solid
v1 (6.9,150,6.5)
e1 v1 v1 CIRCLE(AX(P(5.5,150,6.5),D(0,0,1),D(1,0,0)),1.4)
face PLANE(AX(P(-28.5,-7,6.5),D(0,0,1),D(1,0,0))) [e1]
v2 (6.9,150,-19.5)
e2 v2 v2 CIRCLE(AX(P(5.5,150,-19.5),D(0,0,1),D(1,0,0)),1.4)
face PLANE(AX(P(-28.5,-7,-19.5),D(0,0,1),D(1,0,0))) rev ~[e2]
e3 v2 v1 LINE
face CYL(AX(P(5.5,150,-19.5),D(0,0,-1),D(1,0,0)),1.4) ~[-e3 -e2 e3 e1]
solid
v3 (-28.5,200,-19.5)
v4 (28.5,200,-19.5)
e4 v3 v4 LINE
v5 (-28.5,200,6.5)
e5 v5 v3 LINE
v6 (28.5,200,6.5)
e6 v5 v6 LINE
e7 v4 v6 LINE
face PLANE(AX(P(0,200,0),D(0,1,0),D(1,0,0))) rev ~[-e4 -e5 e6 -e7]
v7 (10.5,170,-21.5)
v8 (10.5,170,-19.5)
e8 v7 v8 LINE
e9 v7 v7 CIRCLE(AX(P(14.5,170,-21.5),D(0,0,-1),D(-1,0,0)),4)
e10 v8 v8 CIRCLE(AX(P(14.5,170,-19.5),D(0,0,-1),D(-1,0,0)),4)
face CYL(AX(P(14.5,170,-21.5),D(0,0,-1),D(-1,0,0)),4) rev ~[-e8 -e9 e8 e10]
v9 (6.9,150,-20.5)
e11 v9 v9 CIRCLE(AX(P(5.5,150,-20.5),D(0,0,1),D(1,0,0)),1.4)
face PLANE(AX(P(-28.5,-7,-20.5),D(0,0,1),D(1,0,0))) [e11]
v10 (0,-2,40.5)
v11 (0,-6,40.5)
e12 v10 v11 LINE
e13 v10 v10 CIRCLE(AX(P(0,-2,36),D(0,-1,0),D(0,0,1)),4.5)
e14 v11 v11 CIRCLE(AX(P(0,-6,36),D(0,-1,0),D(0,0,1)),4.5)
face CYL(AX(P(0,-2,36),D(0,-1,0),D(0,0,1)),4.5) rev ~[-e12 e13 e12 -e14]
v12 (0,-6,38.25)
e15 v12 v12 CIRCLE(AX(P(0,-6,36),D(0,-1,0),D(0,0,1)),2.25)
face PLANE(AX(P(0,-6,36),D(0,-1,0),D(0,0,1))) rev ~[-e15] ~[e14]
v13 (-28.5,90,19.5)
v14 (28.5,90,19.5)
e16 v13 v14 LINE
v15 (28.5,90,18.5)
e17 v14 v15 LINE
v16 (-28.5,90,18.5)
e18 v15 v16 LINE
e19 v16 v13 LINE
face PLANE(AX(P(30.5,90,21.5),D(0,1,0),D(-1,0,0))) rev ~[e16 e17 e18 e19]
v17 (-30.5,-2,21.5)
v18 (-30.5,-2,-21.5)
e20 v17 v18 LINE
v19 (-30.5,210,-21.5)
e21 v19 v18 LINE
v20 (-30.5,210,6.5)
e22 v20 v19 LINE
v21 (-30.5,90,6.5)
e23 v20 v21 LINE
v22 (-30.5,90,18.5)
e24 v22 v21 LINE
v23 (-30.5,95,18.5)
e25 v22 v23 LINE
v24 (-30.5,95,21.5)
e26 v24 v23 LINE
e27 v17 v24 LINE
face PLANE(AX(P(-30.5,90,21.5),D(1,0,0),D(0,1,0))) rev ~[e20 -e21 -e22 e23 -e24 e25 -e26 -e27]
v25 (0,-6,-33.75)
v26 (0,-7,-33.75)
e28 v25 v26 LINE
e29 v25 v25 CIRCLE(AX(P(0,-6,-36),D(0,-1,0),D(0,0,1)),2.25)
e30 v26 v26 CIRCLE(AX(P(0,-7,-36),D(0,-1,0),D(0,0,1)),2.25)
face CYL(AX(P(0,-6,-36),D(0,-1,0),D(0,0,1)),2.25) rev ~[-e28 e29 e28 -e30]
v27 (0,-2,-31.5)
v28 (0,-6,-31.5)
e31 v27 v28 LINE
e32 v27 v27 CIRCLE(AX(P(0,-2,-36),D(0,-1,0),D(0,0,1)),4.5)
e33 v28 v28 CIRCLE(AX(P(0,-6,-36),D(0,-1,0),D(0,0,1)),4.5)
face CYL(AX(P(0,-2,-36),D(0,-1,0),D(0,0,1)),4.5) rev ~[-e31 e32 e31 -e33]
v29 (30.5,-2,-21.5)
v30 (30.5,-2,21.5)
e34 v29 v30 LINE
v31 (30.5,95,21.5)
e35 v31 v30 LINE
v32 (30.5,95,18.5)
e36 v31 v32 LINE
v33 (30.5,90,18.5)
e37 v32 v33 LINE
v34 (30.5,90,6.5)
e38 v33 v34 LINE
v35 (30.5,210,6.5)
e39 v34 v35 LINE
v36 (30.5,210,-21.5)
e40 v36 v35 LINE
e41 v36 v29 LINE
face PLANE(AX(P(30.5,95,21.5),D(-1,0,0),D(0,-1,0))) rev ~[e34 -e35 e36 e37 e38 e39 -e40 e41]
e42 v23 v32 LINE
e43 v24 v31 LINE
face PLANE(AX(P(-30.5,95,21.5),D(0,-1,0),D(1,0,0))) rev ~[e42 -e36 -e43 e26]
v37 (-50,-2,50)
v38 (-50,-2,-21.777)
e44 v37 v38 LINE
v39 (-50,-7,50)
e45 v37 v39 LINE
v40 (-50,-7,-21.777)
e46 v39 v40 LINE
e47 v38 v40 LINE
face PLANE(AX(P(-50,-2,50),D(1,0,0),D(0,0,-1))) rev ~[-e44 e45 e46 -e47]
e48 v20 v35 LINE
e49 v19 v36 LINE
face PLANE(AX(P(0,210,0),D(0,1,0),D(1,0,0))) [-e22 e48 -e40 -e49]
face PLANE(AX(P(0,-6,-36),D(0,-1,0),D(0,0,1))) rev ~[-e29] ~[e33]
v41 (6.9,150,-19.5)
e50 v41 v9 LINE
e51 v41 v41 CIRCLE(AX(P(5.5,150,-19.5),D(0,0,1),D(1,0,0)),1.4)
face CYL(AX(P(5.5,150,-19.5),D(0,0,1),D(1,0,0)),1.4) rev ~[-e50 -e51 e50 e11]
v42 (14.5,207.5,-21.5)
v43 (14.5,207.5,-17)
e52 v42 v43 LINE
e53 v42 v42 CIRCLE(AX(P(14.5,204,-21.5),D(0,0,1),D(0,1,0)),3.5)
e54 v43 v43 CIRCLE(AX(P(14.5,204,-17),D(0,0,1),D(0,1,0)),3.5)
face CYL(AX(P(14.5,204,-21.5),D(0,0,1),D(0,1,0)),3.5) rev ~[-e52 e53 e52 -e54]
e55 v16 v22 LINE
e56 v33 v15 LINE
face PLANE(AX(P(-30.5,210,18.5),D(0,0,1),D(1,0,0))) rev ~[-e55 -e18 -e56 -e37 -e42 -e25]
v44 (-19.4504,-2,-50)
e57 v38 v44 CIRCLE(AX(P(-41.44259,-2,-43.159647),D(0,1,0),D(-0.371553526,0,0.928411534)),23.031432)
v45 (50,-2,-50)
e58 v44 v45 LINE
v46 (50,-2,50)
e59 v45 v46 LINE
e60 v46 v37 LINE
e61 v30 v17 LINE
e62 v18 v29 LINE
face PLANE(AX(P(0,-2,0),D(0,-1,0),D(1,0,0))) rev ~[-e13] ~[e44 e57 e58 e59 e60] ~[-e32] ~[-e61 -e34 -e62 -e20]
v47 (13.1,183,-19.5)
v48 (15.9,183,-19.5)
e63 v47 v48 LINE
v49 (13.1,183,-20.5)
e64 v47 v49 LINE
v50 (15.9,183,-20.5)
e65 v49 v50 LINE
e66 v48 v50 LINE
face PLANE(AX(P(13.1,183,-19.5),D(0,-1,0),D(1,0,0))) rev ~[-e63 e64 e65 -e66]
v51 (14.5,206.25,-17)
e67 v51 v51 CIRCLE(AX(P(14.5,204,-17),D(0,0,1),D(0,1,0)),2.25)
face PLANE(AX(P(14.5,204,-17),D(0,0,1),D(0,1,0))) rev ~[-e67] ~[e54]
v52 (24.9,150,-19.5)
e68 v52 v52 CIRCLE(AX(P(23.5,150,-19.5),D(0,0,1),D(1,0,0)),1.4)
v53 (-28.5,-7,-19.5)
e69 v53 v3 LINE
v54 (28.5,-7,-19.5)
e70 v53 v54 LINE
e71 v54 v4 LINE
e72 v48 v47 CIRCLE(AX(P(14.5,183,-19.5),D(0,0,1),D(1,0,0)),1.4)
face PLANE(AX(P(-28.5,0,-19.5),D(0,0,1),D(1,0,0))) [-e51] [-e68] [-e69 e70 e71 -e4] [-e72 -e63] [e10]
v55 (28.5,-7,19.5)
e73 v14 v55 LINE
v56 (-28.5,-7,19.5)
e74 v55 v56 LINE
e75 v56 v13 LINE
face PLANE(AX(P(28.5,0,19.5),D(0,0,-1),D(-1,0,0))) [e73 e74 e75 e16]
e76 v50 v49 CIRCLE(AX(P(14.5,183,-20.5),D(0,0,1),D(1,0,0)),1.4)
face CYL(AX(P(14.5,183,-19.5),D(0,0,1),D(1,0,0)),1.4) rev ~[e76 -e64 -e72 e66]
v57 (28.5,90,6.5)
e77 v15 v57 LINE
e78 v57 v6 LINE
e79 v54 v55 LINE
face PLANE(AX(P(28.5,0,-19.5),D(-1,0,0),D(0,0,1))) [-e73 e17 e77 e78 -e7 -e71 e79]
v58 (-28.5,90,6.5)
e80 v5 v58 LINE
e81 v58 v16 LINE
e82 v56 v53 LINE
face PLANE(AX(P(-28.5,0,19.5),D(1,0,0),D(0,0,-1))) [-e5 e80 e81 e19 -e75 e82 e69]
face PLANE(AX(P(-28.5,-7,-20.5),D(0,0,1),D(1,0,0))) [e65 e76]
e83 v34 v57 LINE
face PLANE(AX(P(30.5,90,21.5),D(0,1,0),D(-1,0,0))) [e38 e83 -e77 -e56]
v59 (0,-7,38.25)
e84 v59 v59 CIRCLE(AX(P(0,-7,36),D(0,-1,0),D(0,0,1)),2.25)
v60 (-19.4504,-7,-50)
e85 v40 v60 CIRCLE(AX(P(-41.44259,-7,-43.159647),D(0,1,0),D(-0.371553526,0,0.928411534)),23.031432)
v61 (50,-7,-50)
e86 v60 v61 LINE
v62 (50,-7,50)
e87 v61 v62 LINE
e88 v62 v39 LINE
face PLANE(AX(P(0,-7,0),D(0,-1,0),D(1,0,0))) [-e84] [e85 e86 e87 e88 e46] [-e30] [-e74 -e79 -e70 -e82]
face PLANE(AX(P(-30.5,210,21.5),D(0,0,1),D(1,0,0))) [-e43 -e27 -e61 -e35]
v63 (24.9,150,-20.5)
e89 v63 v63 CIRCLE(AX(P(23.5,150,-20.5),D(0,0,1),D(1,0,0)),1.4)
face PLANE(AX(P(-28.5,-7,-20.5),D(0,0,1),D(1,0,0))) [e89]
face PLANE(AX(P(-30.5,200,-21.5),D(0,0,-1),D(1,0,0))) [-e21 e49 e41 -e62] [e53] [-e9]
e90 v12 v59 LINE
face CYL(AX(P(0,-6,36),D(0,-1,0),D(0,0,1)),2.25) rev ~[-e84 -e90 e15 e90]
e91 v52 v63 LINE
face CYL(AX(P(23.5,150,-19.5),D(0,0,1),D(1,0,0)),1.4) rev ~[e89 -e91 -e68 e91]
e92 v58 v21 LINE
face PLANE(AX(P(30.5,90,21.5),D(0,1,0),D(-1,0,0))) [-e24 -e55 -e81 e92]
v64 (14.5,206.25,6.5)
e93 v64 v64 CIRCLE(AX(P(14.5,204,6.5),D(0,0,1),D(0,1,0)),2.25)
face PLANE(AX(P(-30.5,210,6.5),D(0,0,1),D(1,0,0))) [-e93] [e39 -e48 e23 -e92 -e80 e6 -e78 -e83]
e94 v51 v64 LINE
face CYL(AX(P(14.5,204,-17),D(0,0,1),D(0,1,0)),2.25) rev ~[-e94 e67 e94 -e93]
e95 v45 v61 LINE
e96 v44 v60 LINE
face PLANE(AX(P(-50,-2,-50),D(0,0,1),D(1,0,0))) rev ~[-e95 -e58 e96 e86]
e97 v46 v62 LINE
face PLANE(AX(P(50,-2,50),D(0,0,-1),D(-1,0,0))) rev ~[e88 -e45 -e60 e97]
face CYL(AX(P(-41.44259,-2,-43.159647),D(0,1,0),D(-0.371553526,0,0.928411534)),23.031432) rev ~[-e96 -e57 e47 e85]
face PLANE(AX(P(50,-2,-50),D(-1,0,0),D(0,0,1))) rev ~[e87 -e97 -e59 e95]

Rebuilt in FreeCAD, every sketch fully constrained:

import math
import FreeCAD as App
import Part
import Sketcher
from FreeCAD import Vector

doc = App.newDocument("Part")
params = doc.addObject("Spreadsheet::Sheet", "Params")
for row, (alias, value) in enumerate([
    ("sketch1_width", "61 mm"),
    ("sketch1_height", "43 mm"),
    ("pad1_length", "2 mm"),
    ("sketch2_width", "61 mm"),
    ("sketch2_width2", "57 mm"),
    ("sketch2_height", "43 mm"),
    ("sketch2_height2", "39 mm"),
    ("pad2_length", "200 mm"),
    ("sketch3_width", "61 mm"),
    ("sketch3_height", "43 mm"),
    ("pad3_length", "10 mm"),
    ("sketch4_width", "100 mm"),
    ("sketch4_width2", "61 mm"),
    ("sketch4_height", "43 mm"),
    ("pad4_length", "5 mm"),
    ("sketch5_diameter", "14.5 mm"),
    ("sketch5_width", "61 mm"),
    ("sketch5_height", "43 mm"),
    ("pad5_length", "5 mm"),
    ("sketch6_width", "57 mm"),
    ("sketch6_height", "39 mm"),
    ("pocket1_length", "7 mm"),
    ("sketch7_height", "120 mm"),
    ("sketch7_width", "61 mm"),
    ("pocket2_length", "15 mm"),
    ("sketch8_height", "5 mm"),
    ("sketch8_width", "61 mm"),
    ("pad6_length", "3 mm"),
    ("sketch9_diameter", "4.5 mm"),
    ("hole_diameter", "4.5 mm"),
    ("hole_cbore_diameter", "7 mm"),
    ("hole_cbore_depth", "4.5 mm"),
    ("sketch10_diameter", "8 mm"),
    ("sketch11_radius", "1.4 mm"),
    ("pocket4_length", "1 mm"),
    ("sketch12_diameter", "4.5 mm"),
    ("hole2_diameter", "4.5 mm"),
    ("hole2_cbore_diameter", "9 mm"),
    ("hole2_cbore_depth", "4 mm"),
    ("sketch13_diameter", "2.8 mm"),
    ("pocket5_length", "1 mm"),
    ("sketch14_diameter", "2.8 mm"),
    ("pad7_length", "26 mm"),
    ("pocket6_length", "5 mm"),
], start=1):
    params.set(f"A{row}", alias)
    params.set(f"B{row}", "=" + value)
    params.setAlias(f"B{row}", alias)

body = doc.addObject("PartDesign::Body", "Body")
body.AllowCompound = True

sketch1 = doc.addObject("Sketcher::SketchObject", "Sketch")
body.addObject(sketch1)
sketch1.AttachmentSupport = (doc.XZ_Plane, [""])
sketch1.MapMode = "FlatFace"
sketch1.addGeometry(Part.LineSegment(Vector(-30, 22, 0), Vector(30, 22, 0)), False)
sketch1.addGeometry(Part.LineSegment(Vector(30, 22, 0), Vector(30, -22, 0)), False)
sketch1.addGeometry(Part.LineSegment(Vector(30, -22, 0), Vector(-30, -22, 0)), False)
sketch1.addGeometry(Part.LineSegment(Vector(-30, -22, 0), Vector(-30, 22, 0)), False)
sketch1.addConstraint(Sketcher.Constraint("Coincident", 0, 2, 1, 1))
sketch1.addConstraint(Sketcher.Constraint("Coincident", 1, 2, 2, 1))
sketch1.addConstraint(Sketcher.Constraint("Coincident", 2, 2, 3, 1))
sketch1.addConstraint(Sketcher.Constraint("Coincident", 3, 2, 0, 1))
sketch1.addConstraint(Sketcher.Constraint("Horizontal", 0))
sketch1.addConstraint(Sketcher.Constraint("Vertical", 1))
sketch1.addConstraint(Sketcher.Constraint("Horizontal", 2))
sketch1.addConstraint(Sketcher.Constraint("Vertical", 3))
sketch1.addConstraint(Sketcher.Constraint("Symmetric", 0, 2, 2, 2, -1, 1))
sketch1.addConstraint(Sketcher.Constraint("DistanceX", 0, 1, 0, 2, 61.0))
sketch1.addConstraint(Sketcher.Constraint("DistanceY", 1, 2, 1, 1, 43.0))
sketch1.setExpression("Constraints[9]", "Params.sketch1_width")
sketch1.setExpression("Constraints[10]", "Params.sketch1_height")
pad1 = doc.addObject("PartDesign::Pad", "Pad")
body.addObject(pad1)
pad1.Profile = sketch1
pad1.setExpression("Length", "Params.pad1_length")

sketch2 = doc.addObject("Sketcher::SketchObject", "Sketch001")
body.addObject(sketch2)
sketch2.AttachmentSupport = (doc.XZ_Plane, [""])
sketch2.MapMode = "FlatFace"
sketch2.addGeometry(Part.LineSegment(Vector(-30, 22, 0), Vector(30, 22, 0)), False)
sketch2.addGeometry(Part.LineSegment(Vector(30, 22, 0), Vector(30, -22, 0)), False)
sketch2.addGeometry(Part.LineSegment(Vector(30, -22, 0), Vector(-30, -22, 0)), False)
sketch2.addGeometry(Part.LineSegment(Vector(-30, -22, 0), Vector(-30, 22, 0)), False)
sketch2.addGeometry(Part.LineSegment(Vector(28, -20, 0), Vector(28, 20, 0)), False)
sketch2.addGeometry(Part.LineSegment(Vector(28, 20, 0), Vector(-28, 20, 0)), False)
sketch2.addGeometry(Part.LineSegment(Vector(-28, 20, 0), Vector(-28, -20, 0)), False)
sketch2.addGeometry(Part.LineSegment(Vector(-28, -20, 0), Vector(28, -20, 0)), False)
sketch2.addConstraint(Sketcher.Constraint("Coincident", 0, 2, 1, 1))
sketch2.addConstraint(Sketcher.Constraint("Coincident", 1, 2, 2, 1))
sketch2.addConstraint(Sketcher.Constraint("Coincident", 2, 2, 3, 1))
sketch2.addConstraint(Sketcher.Constraint("Coincident", 3, 2, 0, 1))
sketch2.addConstraint(Sketcher.Constraint("Coincident", 4, 2, 5, 1))
sketch2.addConstraint(Sketcher.Constraint("Coincident", 5, 2, 6, 1))
sketch2.addConstraint(Sketcher.Constraint("Coincident", 6, 2, 7, 1))
sketch2.addConstraint(Sketcher.Constraint("Coincident", 7, 2, 4, 1))
sketch2.addConstraint(Sketcher.Constraint("Horizontal", 0))
sketch2.addConstraint(Sketcher.Constraint("Vertical", 1))
sketch2.addConstraint(Sketcher.Constraint("Horizontal", 2))
sketch2.addConstraint(Sketcher.Constraint("Vertical", 3))
sketch2.addConstraint(Sketcher.Constraint("Vertical", 4))
sketch2.addConstraint(Sketcher.Constraint("Horizontal", 5))
sketch2.addConstraint(Sketcher.Constraint("Vertical", 6))
sketch2.addConstraint(Sketcher.Constraint("Horizontal", 7))
sketch2.addConstraint(Sketcher.Constraint("Symmetric", 0, 2, 2, 2, -1, 1))
sketch2.addConstraint(Sketcher.Constraint("Symmetric", 4, 2, 6, 2, -1, 1))
sketch2.addConstraint(Sketcher.Constraint("DistanceX", 0, 1, 0, 2, 61.0))
sketch2.addConstraint(Sketcher.Constraint("DistanceX", 5, 2, 5, 1, 57.0))
sketch2.addConstraint(Sketcher.Constraint("DistanceY", 1, 2, 1, 1, 43.0))
sketch2.addConstraint(Sketcher.Constraint("DistanceY", 4, 1, 4, 2, 39.0))
sketch2.setExpression("Constraints[18]", "Params.sketch2_width")
sketch2.setExpression("Constraints[19]", "Params.sketch2_width2")
sketch2.setExpression("Constraints[20]", "Params.sketch2_height")
sketch2.setExpression("Constraints[21]", "Params.sketch2_height2")
pad2 = doc.addObject("PartDesign::Pad", "Pad001")
body.addObject(pad2)
pad2.Profile = sketch2
pad2.setExpression("Length", "Params.pad2_length")
pad2.Reversed = True

sketch3 = doc.addObject("Sketcher::SketchObject", "Sketch002")
body.addObject(sketch3)
sketch3.AttachmentSupport = (doc.XZ_Plane, [""])
sketch3.MapMode = "FlatFace"
sketch3.AttachmentOffset = App.Placement(Vector(0, 0, -200), App.Rotation())
sketch3.addGeometry(Part.LineSegment(Vector(-30, -22, 0), Vector(-30, 22, 0)), False)
sketch3.addGeometry(Part.LineSegment(Vector(-30, 22, 0), Vector(30, 22, 0)), False)
sketch3.addGeometry(Part.LineSegment(Vector(30, 22, 0), Vector(30, -22, 0)), False)
sketch3.addGeometry(Part.LineSegment(Vector(30, -22, 0), Vector(-30, -22, 0)), False)
sketch3.addConstraint(Sketcher.Constraint("Coincident", 0, 2, 1, 1))
sketch3.addConstraint(Sketcher.Constraint("Coincident", 1, 2, 2, 1))
sketch3.addConstraint(Sketcher.Constraint("Coincident", 2, 2, 3, 1))
sketch3.addConstraint(Sketcher.Constraint("Coincident", 3, 2, 0, 1))
sketch3.addConstraint(Sketcher.Constraint("Vertical", 0))
sketch3.addConstraint(Sketcher.Constraint("Horizontal", 1))
sketch3.addConstraint(Sketcher.Constraint("Vertical", 2))
sketch3.addConstraint(Sketcher.Constraint("Horizontal", 3))
sketch3.addConstraint(Sketcher.Constraint("Symmetric", 0, 2, 2, 2, -1, 1))
sketch3.addConstraint(Sketcher.Constraint("DistanceX", 1, 1, 1, 2, 61.0))
sketch3.addConstraint(Sketcher.Constraint("DistanceY", 0, 1, 0, 2, 43.0))
sketch3.setExpression("Constraints[9]", "Params.sketch3_width")
sketch3.setExpression("Constraints[10]", "Params.sketch3_height")
pad3 = doc.addObject("PartDesign::Pad", "Pad002")
body.addObject(pad3)
pad3.Profile = sketch3
pad3.setExpression("Length", "Params.pad3_length")
pad3.Reversed = True

sketch4 = doc.addObject("Sketcher::SketchObject", "Sketch003")
body.addObject(sketch4)
sketch4.AttachmentSupport = (doc.XZ_Plane, [""])
sketch4.MapMode = "FlatFace"
sketch4.AttachmentOffset = App.Placement(Vector(0, 0, 2), App.Rotation())
sketch4.addGeometry(Part.LineSegment(Vector(-50, 50, 0), Vector(-50, -50, 0)), False)
sketch4.addGeometry(Part.LineSegment(Vector(-50, -50, 0), Vector(50, -50, 0)), False)
sketch4.addGeometry(Part.LineSegment(Vector(50, -50, 0), Vector(50, 50, 0)), False)
sketch4.addGeometry(Part.LineSegment(Vector(50, 50, 0), Vector(-50, 50, 0)), False)
sketch4.addGeometry(Part.LineSegment(Vector(30, -22, 0), Vector(-30, -22, 0)), False)
sketch4.addGeometry(Part.LineSegment(Vector(-30, -22, 0), Vector(-30, 22, 0)), False)
sketch4.addGeometry(Part.LineSegment(Vector(-30, 22, 0), Vector(30, 22, 0)), False)
sketch4.addGeometry(Part.LineSegment(Vector(30, 22, 0), Vector(30, -22, 0)), False)
sketch4.addConstraint(Sketcher.Constraint("Coincident", 0, 2, 1, 1))
sketch4.addConstraint(Sketcher.Constraint("Coincident", 1, 2, 2, 1))
sketch4.addConstraint(Sketcher.Constraint("Coincident", 2, 2, 3, 1))
sketch4.addConstraint(Sketcher.Constraint("Coincident", 3, 2, 0, 1))
sketch4.addConstraint(Sketcher.Constraint("Coincident", 4, 2, 5, 1))
sketch4.addConstraint(Sketcher.Constraint("Coincident", 5, 2, 6, 1))
sketch4.addConstraint(Sketcher.Constraint("Coincident", 6, 2, 7, 1))
sketch4.addConstraint(Sketcher.Constraint("Coincident", 7, 2, 4, 1))
sketch4.addConstraint(Sketcher.Constraint("Vertical", 0))
sketch4.addConstraint(Sketcher.Constraint("Horizontal", 1))
sketch4.addConstraint(Sketcher.Constraint("Vertical", 2))
sketch4.addConstraint(Sketcher.Constraint("Horizontal", 3))
sketch4.addConstraint(Sketcher.Constraint("Horizontal", 4))
sketch4.addConstraint(Sketcher.Constraint("Vertical", 5))
sketch4.addConstraint(Sketcher.Constraint("Horizontal", 6))
sketch4.addConstraint(Sketcher.Constraint("Vertical", 7))
sketch4.addConstraint(Sketcher.Constraint("Symmetric", 0, 2, 2, 2, -1, 1))
sketch4.addConstraint(Sketcher.Constraint("Symmetric", 4, 2, 6, 2, -1, 1))
sketch4.addConstraint(Sketcher.Constraint("Equal", 3, 0))
sketch4.addConstraint(Sketcher.Constraint("DistanceX", 1, 1, 1, 2, 100.0))
sketch4.addConstraint(Sketcher.Constraint("DistanceX", 4, 2, 4, 1, 61.0))
sketch4.addConstraint(Sketcher.Constraint("DistanceY", 5, 1, 5, 2, 43.0))
sketch4.setExpression("Constraints[19]", "Params.sketch4_width")
sketch4.setExpression("Constraints[20]", "Params.sketch4_width2")
sketch4.setExpression("Constraints[21]", "Params.sketch4_height")
pad4 = doc.addObject("PartDesign::Pad", "Pad003")
body.addObject(pad4)
pad4.Profile = sketch4
pad4.setExpression("Length", "Params.pad4_length")

sketch5 = doc.addObject("Sketcher::SketchObject", "Sketch004")
body.addObject(sketch5)
sketch5.AttachmentSupport = (doc.XZ_Plane, [""])
sketch5.MapMode = "FlatFace"
sketch5.AttachmentOffset = App.Placement(Vector(0, 0, 2), App.Rotation())
sketch5.addGeometry(Part.LineSegment(Vector(-30, 22, 0), Vector(-30, -22, 0)), False)
sketch5.addGeometry(Part.LineSegment(Vector(-30, -22, 0), Vector(30, -22, 0)), False)
sketch5.addGeometry(Part.LineSegment(Vector(30, -22, 0), Vector(30, 22, 0)), False)
sketch5.addGeometry(Part.LineSegment(Vector(30, 22, 0), Vector(-30, 22, 0)), False)
sketch5.addGeometry(Part.Circle(Vector(0, 0, 0), Vector(0, 0, 1), 7), False)
sketch5.addConstraint(Sketcher.Constraint("Coincident", 0, 2, 1, 1))
sketch5.addConstraint(Sketcher.Constraint("Coincident", 1, 2, 2, 1))
sketch5.addConstraint(Sketcher.Constraint("Coincident", 2, 2, 3, 1))
sketch5.addConstraint(Sketcher.Constraint("Coincident", 3, 2, 0, 1))
sketch5.addConstraint(Sketcher.Constraint("Vertical", 0))
sketch5.addConstraint(Sketcher.Constraint("Horizontal", 1))
sketch5.addConstraint(Sketcher.Constraint("Vertical", 2))
sketch5.addConstraint(Sketcher.Constraint("Horizontal", 3))
sketch5.addConstraint(Sketcher.Constraint("Coincident", 4, 3, -1, 1))
sketch5.addConstraint(Sketcher.Constraint("Symmetric", 0, 2, 2, 2, -1, 1))
sketch5.addConstraint(Sketcher.Constraint("Diameter", 4, 14.5))
sketch5.addConstraint(Sketcher.Constraint("DistanceX", 1, 1, 1, 2, 61.0))
sketch5.addConstraint(Sketcher.Constraint("DistanceY", 0, 2, 0, 1, 43.0))
sketch5.setExpression("Constraints[10]", "Params.sketch5_diameter")
sketch5.setExpression("Constraints[11]", "Params.sketch5_width")
sketch5.setExpression("Constraints[12]", "Params.sketch5_height")
pad5 = doc.addObject("PartDesign::Pad", "Pad004")
body.addObject(pad5)
pad5.Profile = sketch5
pad5.setExpression("Length", "Params.pad5_length")

sketch6 = doc.addObject("Sketcher::SketchObject", "Sketch005")
body.addObject(sketch6)
sketch6.AttachmentSupport = (doc.XZ_Plane, [""])
sketch6.MapMode = "FlatFace"
sketch6.addGeometry(Part.LineSegment(Vector(-28, 20, 0), Vector(28, 20, 0)), False)
sketch6.addGeometry(Part.LineSegment(Vector(28, 20, 0), Vector(28, -20, 0)), False)
sketch6.addGeometry(Part.LineSegment(Vector(28, -20, 0), Vector(-28, -20, 0)), False)
sketch6.addGeometry(Part.LineSegment(Vector(-28, -20, 0), Vector(-28, 20, 0)), False)
sketch6.addConstraint(Sketcher.Constraint("Coincident", 0, 2, 1, 1))
sketch6.addConstraint(Sketcher.Constraint("Coincident", 1, 2, 2, 1))
sketch6.addConstraint(Sketcher.Constraint("Coincident", 2, 2, 3, 1))
sketch6.addConstraint(Sketcher.Constraint("Coincident", 3, 2, 0, 1))
sketch6.addConstraint(Sketcher.Constraint("Horizontal", 0))
sketch6.addConstraint(Sketcher.Constraint("Vertical", 1))
sketch6.addConstraint(Sketcher.Constraint("Horizontal", 2))
sketch6.addConstraint(Sketcher.Constraint("Vertical", 3))
sketch6.addConstraint(Sketcher.Constraint("Symmetric", 0, 2, 2, 2, -1, 1))
sketch6.addConstraint(Sketcher.Constraint("DistanceX", 0, 1, 0, 2, 57.0))
sketch6.addConstraint(Sketcher.Constraint("DistanceY", 1, 2, 1, 1, 39.0))
sketch6.setExpression("Constraints[9]", "Params.sketch6_width")
sketch6.setExpression("Constraints[10]", "Params.sketch6_height")
pocket1 = doc.addObject("PartDesign::Pocket", "Pocket")
body.addObject(pocket1)
pocket1.Profile = sketch6
pocket1.setExpression("Length", "Params.pocket1_length")
pocket1.Reversed = True

sketch7 = doc.addObject("Sketcher::SketchObject", "Sketch006")
body.addObject(sketch7)
sketch7.AttachmentSupport = (doc.XY_Plane, [""])
sketch7.MapMode = "FlatFace"
sketch7.AttachmentOffset = App.Placement(Vector(0, 0, 21.5), App.Rotation())
sketch7.addGeometry(Part.LineSegment(Vector(30, 210, 0), Vector(-30, 210, 0)), False)
sketch7.addGeometry(Part.LineSegment(Vector(-30, 210, 0), Vector(-30, 90, 0)), False)
sketch7.addGeometry(Part.LineSegment(Vector(-30, 90, 0), Vector(30, 90, 0)), False)
sketch7.addGeometry(Part.LineSegment(Vector(30, 90, 0), Vector(30, 210, 0)), False)
sketch7.addConstraint(Sketcher.Constraint("Coincident", 0, 2, 1, 1))
sketch7.addConstraint(Sketcher.Constraint("Coincident", 1, 2, 2, 1))
sketch7.addConstraint(Sketcher.Constraint("Coincident", 2, 2, 3, 1))
sketch7.addConstraint(Sketcher.Constraint("Coincident", 3, 2, 0, 1))
sketch7.addConstraint(Sketcher.Constraint("Horizontal", 0))
sketch7.addConstraint(Sketcher.Constraint("Vertical", 1))
sketch7.addConstraint(Sketcher.Constraint("Horizontal", 2))
sketch7.addConstraint(Sketcher.Constraint("Vertical", 3))
sketch7.addConstraint(Sketcher.Constraint("DistanceY", 1, 2, 1, 1, 120.0))
sketch7.addConstraint(Sketcher.Constraint("DistanceX", 0, 2, 0, 1, 61.0))
sketch7.addConstraint(Sketcher.Constraint("DistanceY", -1, 1, 0, 2, 210.0))
sketch7.addConstraint(Sketcher.Constraint("DistanceX", 0, 2, -1, 1, 30.5))
sketch7.setExpression("Constraints[8]", "Params.sketch7_height")
sketch7.setExpression("Constraints[9]", "Params.sketch7_width")
pocket2 = doc.addObject("PartDesign::Pocket", "Pocket001")
body.addObject(pocket2)
pocket2.Profile = sketch7
pocket2.setExpression("Length", "Params.pocket2_length")

sketch8 = doc.addObject("Sketcher::SketchObject", "Sketch007")
body.addObject(sketch8)
sketch8.AttachmentSupport = (doc.XY_Plane, [""])
sketch8.MapMode = "FlatFace"
sketch8.AttachmentOffset = App.Placement(Vector(0, 0, 21.5), App.Rotation())
sketch8.addGeometry(Part.LineSegment(Vector(30, 95, 0), Vector(-30, 95, 0)), False)
sketch8.addGeometry(Part.LineSegment(Vector(-30, 95, 0), Vector(-30, 90, 0)), False)
sketch8.addGeometry(Part.LineSegment(Vector(-30, 90, 0), Vector(30, 90, 0)), False)
sketch8.addGeometry(Part.LineSegment(Vector(30, 90, 0), Vector(30, 95, 0)), False)
sketch8.addConstraint(Sketcher.Constraint("Coincident", 0, 2, 1, 1))
sketch8.addConstraint(Sketcher.Constraint("Coincident", 1, 2, 2, 1))
sketch8.addConstraint(Sketcher.Constraint("Coincident", 2, 2, 3, 1))
sketch8.addConstraint(Sketcher.Constraint("Coincident", 3, 2, 0, 1))
sketch8.addConstraint(Sketcher.Constraint("Horizontal", 0))
sketch8.addConstraint(Sketcher.Constraint("Vertical", 1))
sketch8.addConstraint(Sketcher.Constraint("Horizontal", 2))
sketch8.addConstraint(Sketcher.Constraint("Vertical", 3))
sketch8.addConstraint(Sketcher.Constraint("DistanceY", 1, 2, 1, 1, 5.0))
sketch8.addConstraint(Sketcher.Constraint("DistanceX", 0, 2, 0, 1, 61.0))
sketch8.addConstraint(Sketcher.Constraint("DistanceY", -1, 1, 0, 2, 95.0))
sketch8.addConstraint(Sketcher.Constraint("DistanceX", 0, 2, -1, 1, 30.5))
sketch8.setExpression("Constraints[8]", "Params.sketch8_height")
sketch8.setExpression("Constraints[9]", "Params.sketch8_width")
pad6 = doc.addObject("PartDesign::Pad", "Pad005")
body.addObject(pad6)
pad6.Profile = sketch8
pad6.setExpression("Length", "Params.pad6_length")
pad6.Reversed = True

sketch9 = doc.addObject("Sketcher::SketchObject", "Sketch008")
body.addObject(sketch9)
sketch9.AttachmentSupport = (doc.XY_Plane, [""])
sketch9.MapMode = "FlatFace"
sketch9.AttachmentOffset = App.Placement(Vector(0, 0, -21.5), App.Rotation())
sketch9.addGeometry(Part.Circle(Vector(14.5, 204, 0), Vector(0, 0, 1), 2.2), False)
sketch9.addConstraint(Sketcher.Constraint("Diameter", 0, 4.5))
sketch9.addConstraint(Sketcher.Constraint("DistanceY", -1, 1, 0, 3, 204.0))
sketch9.addConstraint(Sketcher.Constraint("DistanceX", -1, 1, 0, 3, 14.5))
sketch9.setExpression("Constraints[0]", "Params.sketch9_diameter")
doc.recompute()
hole = doc.addObject("PartDesign::Hole", "Hole")
body.addObject(hole)
hole.Profile = sketch9
hole.ThreadType = "None"
hole.setExpression("Diameter", "Params.hole_diameter")
hole.DepthType = "ThroughAll"
hole.HoleCutType = "Counterbore"
hole.setExpression("HoleCutDiameter", "Params.hole_cbore_diameter")
hole.setExpression("HoleCutDepth", "Params.hole_cbore_depth")
hole.Reversed = True

sketch10 = doc.addObject("Sketcher::SketchObject", "Sketch009")
body.addObject(sketch10)
sketch10.AttachmentSupport = (doc.XY_Plane, [""])
sketch10.MapMode = "FlatFace"
sketch10.AttachmentOffset = App.Placement(Vector(0, 0, -21.5), App.Rotation())
sketch10.addGeometry(Part.Circle(Vector(14.5, 170, 0), Vector(0, 0, 1), 4), False)
sketch10.addConstraint(Sketcher.Constraint("Diameter", 0, 8.0))
sketch10.addConstraint(Sketcher.Constraint("DistanceY", -1, 1, 0, 3, 170.0))
sketch10.addConstraint(Sketcher.Constraint("DistanceX", -1, 1, 0, 3, 14.5))
sketch10.setExpression("Constraints[0]", "Params.sketch10_diameter")
pocket3 = doc.addObject("PartDesign::Pocket", "Pocket002")
body.addObject(pocket3)
pocket3.Profile = sketch10
pocket3.Type = "ThroughAll"
pocket3.Reversed = True

sketch11 = doc.addObject("Sketcher::SketchObject", "Sketch010")
body.addObject(sketch11)
sketch11.AttachmentSupport = (doc.XY_Plane, [""])
sketch11.MapMode = "FlatFace"
sketch11.AttachmentOffset = App.Placement(Vector(0, 0, -19.5), App.Rotation())
sketch11.addGeometry(Part.LineSegment(Vector(13.1, 183, 0), Vector(15.9, 183, 0)), False)
sketch11.addGeometry(Part.ArcOfCircle(Part.Circle(Vector(14.5, 183, 0), Vector(0, 0, 1), 1.4), math.radians(0), math.radians(180)), False)
sketch11.addConstraint(Sketcher.Constraint("Coincident", 0, 1, 1, 2))
sketch11.addConstraint(Sketcher.Constraint("Coincident", 1, 1, 0, 2))
sketch11.addConstraint(Sketcher.Constraint("Horizontal", 0))
sketch11.addConstraint(Sketcher.Constraint("Horizontal", 1, 3, 0, 1))
sketch11.addConstraint(Sketcher.Constraint("Radius", 1, 1.4))
sketch11.addConstraint(Sketcher.Constraint("DistanceY", -1, 1, 1, 3, 183.0))
sketch11.addConstraint(Sketcher.Constraint("DistanceX", -1, 1, 1, 3, 14.5))
sketch11.setExpression("Constraints[4]", "Params.sketch11_radius")
pocket4 = doc.addObject("PartDesign::Pocket", "Pocket003")
body.addObject(pocket4)
pocket4.Profile = sketch11
pocket4.setExpression("Length", "Params.pocket4_length")

sketch12 = doc.addObject("Sketcher::SketchObject", "Sketch011")
body.addObject(sketch12)
sketch12.AttachmentSupport = (doc.XZ_Plane, [""])
sketch12.MapMode = "FlatFace"
sketch12.AttachmentOffset = App.Placement(Vector(0, 0, 2), App.Rotation())
sketch12.addGeometry(Part.Circle(Vector(0, -36, 0), Vector(0, 0, 1), 2.2), False)
sketch12.addGeometry(Part.Circle(Vector(0, 36, 0), Vector(0, 0, 1), 2.2), False)
sketch12.addConstraint(Sketcher.Constraint("Equal", 0, 1))
sketch12.addConstraint(Sketcher.Constraint("Symmetric", 0, 3, 1, 3, -1, 1))
sketch12.addConstraint(Sketcher.Constraint("PointOnObject", 0, 3, -2))
sketch12.addConstraint(Sketcher.Constraint("Diameter", 0, 4.5))
sketch12.addConstraint(Sketcher.Constraint("DistanceY", 0, 3, -1, 1, 36.0))
sketch12.setExpression("Constraints[3]", "Params.sketch12_diameter")
doc.recompute()
hole2 = doc.addObject("PartDesign::Hole", "Hole001")
body.addObject(hole2)
hole2.Profile = sketch12
hole2.ThreadType = "None"
hole2.setExpression("Diameter", "Params.hole2_diameter")
hole2.DepthType = "ThroughAll"
hole2.HoleCutType = "Counterbore"
hole2.setExpression("HoleCutDiameter", "Params.hole2_cbore_diameter")
hole2.setExpression("HoleCutDepth", "Params.hole2_cbore_depth")
hole2.Reversed = True

sketch13 = doc.addObject("Sketcher::SketchObject", "Sketch012")
body.addObject(sketch13)
sketch13.AttachmentSupport = (doc.XY_Plane, [""])
sketch13.MapMode = "FlatFace"
sketch13.AttachmentOffset = App.Placement(Vector(0, 0, -19.5), App.Rotation())
sketch13.addGeometry(Part.Circle(Vector(23.5, 150, 0), Vector(0, 0, 1), 1.4), False)
sketch13.addGeometry(Part.Circle(Vector(5.5, 150, 0), Vector(0, 0, 1), 1.4), False)
sketch13.addConstraint(Sketcher.Constraint("Equal", 0, 1))
sketch13.addConstraint(Sketcher.Constraint("Horizontal", 0, 3, 1, 3))
sketch13.addConstraint(Sketcher.Constraint("Diameter", 0, 2.8))
sketch13.addConstraint(Sketcher.Constraint("DistanceY", -1, 1, 0, 3, 150.0))
sketch13.addConstraint(Sketcher.Constraint("DistanceX", 1, 3, 0, 3, 18.0))
sketch13.addConstraint(Sketcher.Constraint("DistanceX", -1, 1, 0, 3, 23.5))
sketch13.setExpression("Constraints[2]", "Params.sketch13_diameter")
pocket5 = doc.addObject("PartDesign::Pocket", "Pocket004")
body.addObject(pocket5)
pocket5.Profile = sketch13
pocket5.setExpression("Length", "Params.pocket5_length")

sketch14 = doc.addObject("Sketcher::SketchObject", "Sketch013")
body.addObject(sketch14)
sketch14.AttachmentSupport = (doc.XY_Plane, [""])
sketch14.MapMode = "FlatFace"
sketch14.AttachmentOffset = App.Placement(Vector(0, 0, -19.5), App.Rotation())
sketch14.addGeometry(Part.Circle(Vector(5.5, 150, 0), Vector(0, 0, 1), 1.4), False)
sketch14.addConstraint(Sketcher.Constraint("Diameter", 0, 2.8))
sketch14.addConstraint(Sketcher.Constraint("DistanceY", -1, 1, 0, 3, 150.0))
sketch14.addConstraint(Sketcher.Constraint("DistanceX", -1, 1, 0, 3, 5.5))
sketch14.setExpression("Constraints[0]", "Params.sketch14_diameter")
pad7 = doc.addObject("PartDesign::Pad", "Pad006")
body.addObject(pad7)
pad7.Profile = sketch14
pad7.setExpression("Length", "Params.pad7_length")

sketch15 = doc.addObject("Sketcher::SketchObject", "Sketch014")
body.addObject(sketch15)
sketch15.AttachmentSupport = (doc.XZ_Plane, [""])
sketch15.MapMode = "FlatFace"
sketch15.AttachmentOffset = App.Placement(Vector(0, 0, 2), App.Rotation())
sketch15.addGeometry(Part.LineSegment(Vector(-50, -50, 0), Vector(-50, -22, 0)), False)
sketch15.addGeometry(Part.ArcOfCircle(Part.Circle(Vector(-41, -43, 0), Vector(0, 0, 1), 23), math.radians(-17), math.radians(112)), False)
sketch15.addGeometry(Part.LineSegment(Vector(-19, -50, 0), Vector(-50, -50, 0)), False)
sketch15.addConstraint(Sketcher.Constraint("Coincident", 0, 2, 1, 2))
sketch15.addConstraint(Sketcher.Constraint("Coincident", 1, 1, 2, 1))
sketch15.addConstraint(Sketcher.Constraint("Coincident", 2, 2, 0, 1))
sketch15.addConstraint(Sketcher.Constraint("Vertical", 0))
sketch15.addConstraint(Sketcher.Constraint("Horizontal", 2))
sketch15.addConstraint(Sketcher.Constraint("DistanceX", 0, 2, -1, 1, 50.0))
sketch15.addConstraint(Sketcher.Constraint("DistanceY", 1, 1, -1, 1, 50.0))
sketch15.addConstraint(Sketcher.Constraint("Radius", 1, 23.0315))
sketch15.addConstraint(Sketcher.Constraint("DistanceY", 0, 1, 0, 2, 28.223))
sketch15.addConstraint(Sketcher.Constraint("DistanceX", 2, 2, 2, 1, 30.5496))
pocket6 = doc.addObject("PartDesign::Pocket", "Pocket005")
body.addObject(pocket6)
pocket6.Profile = sketch15
pocket6.setExpression("Length", "Params.pocket6_length")
pocket6.Reversed = True

doc.recompute()
